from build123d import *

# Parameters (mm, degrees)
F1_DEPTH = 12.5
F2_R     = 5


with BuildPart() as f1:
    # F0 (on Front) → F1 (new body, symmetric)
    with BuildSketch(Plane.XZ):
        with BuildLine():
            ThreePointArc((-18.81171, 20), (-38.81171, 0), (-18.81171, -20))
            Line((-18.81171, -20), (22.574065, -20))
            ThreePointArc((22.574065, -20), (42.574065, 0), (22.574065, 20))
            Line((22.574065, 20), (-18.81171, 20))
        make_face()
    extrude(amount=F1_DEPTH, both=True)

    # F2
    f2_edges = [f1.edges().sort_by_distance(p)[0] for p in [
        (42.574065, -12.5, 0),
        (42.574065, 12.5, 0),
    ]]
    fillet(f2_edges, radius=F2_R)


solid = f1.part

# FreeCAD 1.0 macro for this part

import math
import FreeCAD as App
import Part
import Sketcher
from FreeCAD import Vector
Q = App.Units.Quantity


def edges_at(feature, points):
    """Names of the edges that pass closest to the given points."""
    edges = feature.Shape.Edges
    near = lambda p: min(range(len(edges)), key=lambda i: edges[i].distToShape(Part.Vertex(*p))[0])
    return sorted({f"Edge{near(p) + 1}" for p in points})

doc = App.newDocument("Part")
body = doc.addObject("PartDesign::Body", "Body")

# Sketch on XZ plane
sketch1 = body.newObject("Sketcher::SketchObject", "Sketch")
sketch1.AttachmentSupport = (doc.getObject("XZ_Plane"), [""])
sketch1.MapMode = "FlatFace"
sketch1.addGeometry([
    Part.ArcOfCircle(Part.Circle(Vector(-19, 0, 0), Vector(0, 0, 1), 20), math.radians(90), math.radians(270)),
    Part.LineSegment(Vector(-19, -20, 0), Vector(23, -20, 0)),
    Part.ArcOfCircle(Part.Circle(Vector(23, 0, 0), Vector(0, 0, 1), 20), math.radians(-90), math.radians(90)),
    Part.LineSegment(Vector(23, 20, 0), Vector(-19, 20, 0)),
], False)
sketch1.addConstraint([
    Sketcher.Constraint("Tangent", 0, 2, 1, 1),
    Sketcher.Constraint("Tangent", 1, 2, 2, 1),
    Sketcher.Constraint("Tangent", 2, 2, 3, 1),
    Sketcher.Constraint("Tangent", 3, 2, 0, 1),
    Sketcher.Constraint("Horizontal", 1),
    Sketcher.Constraint("Horizontal", 3),
    Sketcher.Constraint("PointOnObject", 0, 3, -1),
    Sketcher.Constraint("Radius", 0, Q("20 mm")),
    Sketcher.Constraint("DistanceX", 1, 1, 1, 2, Q("41.385775 mm")),
    Sketcher.Constraint("DistanceX", 0, 3, -1, 1, Q("18.81171 mm")),
])
pad1 = body.newObject("PartDesign::Pad", "Pad")
pad1.Profile = sketch1
pad1.Length = 25
pad1.Midplane = True
doc.recompute()

fillet = body.newObject("PartDesign::Fillet", "Fillet")
fillet.Base = (pad1, edges_at(pad1, [(42.574, -12.5, 0), (42.574, 12.5, 0)]))
fillet.Radius = 5

doc.recompute()
